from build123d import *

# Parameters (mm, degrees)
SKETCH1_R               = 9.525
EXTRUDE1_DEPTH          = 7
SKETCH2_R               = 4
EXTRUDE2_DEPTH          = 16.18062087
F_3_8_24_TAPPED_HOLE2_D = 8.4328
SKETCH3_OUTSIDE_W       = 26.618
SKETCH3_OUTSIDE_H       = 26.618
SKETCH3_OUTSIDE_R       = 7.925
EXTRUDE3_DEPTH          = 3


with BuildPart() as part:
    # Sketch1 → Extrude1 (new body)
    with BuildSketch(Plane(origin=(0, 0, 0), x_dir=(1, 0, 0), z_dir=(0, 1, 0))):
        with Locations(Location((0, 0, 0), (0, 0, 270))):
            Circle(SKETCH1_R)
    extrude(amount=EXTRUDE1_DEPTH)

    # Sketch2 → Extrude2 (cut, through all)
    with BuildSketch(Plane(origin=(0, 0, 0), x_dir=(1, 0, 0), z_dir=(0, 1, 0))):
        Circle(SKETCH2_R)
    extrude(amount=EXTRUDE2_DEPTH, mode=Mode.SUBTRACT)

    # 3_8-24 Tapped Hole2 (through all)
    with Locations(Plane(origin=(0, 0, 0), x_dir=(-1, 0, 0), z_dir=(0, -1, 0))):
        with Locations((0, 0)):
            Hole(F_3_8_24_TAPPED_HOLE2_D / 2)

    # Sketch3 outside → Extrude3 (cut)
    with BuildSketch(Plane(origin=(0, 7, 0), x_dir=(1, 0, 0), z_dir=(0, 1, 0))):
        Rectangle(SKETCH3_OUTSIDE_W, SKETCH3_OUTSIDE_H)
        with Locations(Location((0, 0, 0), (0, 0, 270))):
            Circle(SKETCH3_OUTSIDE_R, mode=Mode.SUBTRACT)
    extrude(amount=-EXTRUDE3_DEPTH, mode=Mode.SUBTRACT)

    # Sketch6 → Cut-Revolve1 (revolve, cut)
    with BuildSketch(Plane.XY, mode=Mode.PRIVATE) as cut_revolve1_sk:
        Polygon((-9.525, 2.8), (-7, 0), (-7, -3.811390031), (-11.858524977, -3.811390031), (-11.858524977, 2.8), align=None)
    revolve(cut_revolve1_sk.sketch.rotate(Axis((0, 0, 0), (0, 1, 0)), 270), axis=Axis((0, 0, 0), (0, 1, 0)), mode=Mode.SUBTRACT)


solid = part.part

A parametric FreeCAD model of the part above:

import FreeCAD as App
import Part
import Sketcher

doc = App.newDocument("Part")
body = doc.addObject("PartDesign::Body", "Body")

# Sketch on XZ plane
sketch1 = doc.addObject("Sketcher::SketchObject", "Sketch")
body.addObject(sketch1)
sketch1.AttachmentSupport = (doc.XZ_Plane, [""])
sketch1.MapMode = "FlatFace"
sketch1.addGeometry(Part.Circle(App.Vector(0, 0, 0), App.Vector(0, 0, 1), 9.525), False)
sketch1.addConstraint(Sketcher.Constraint("Coincident", 0, 3, -1, 1))
sketch1.addConstraint(Sketcher.Constraint("Diameter", 0, 19.05))
pad1 = doc.addObject("PartDesign::Pad", "Pad")
body.addObject(pad1)
pad1.Profile = sketch1
pad1.Length = 7
pad1.Reversed = True

# Sketch on XZ plane
sketch2 = doc.addObject("Sketcher::SketchObject", "Sketch001")
body.addObject(sketch2)
sketch2.AttachmentSupport = (doc.XZ_Plane, [""])
sketch2.MapMode = "FlatFace"
sketch2.addGeometry(Part.Circle(App.Vector(0, 0, 0), App.Vector(0, 0, 1), 4), False)
sketch2.addConstraint(Sketcher.Constraint("Coincident", 0, 3, -1, 1))
sketch2.addConstraint(Sketcher.Constraint("Diameter", 0, 8.0))
pocket1 = doc.addObject("PartDesign::Pocket", "Pocket")
body.addObject(pocket1)
pocket1.Profile = sketch2
pocket1.Type = "ThroughAll"

# Sketch on XZ plane
sketch3 = doc.addObject("Sketcher::SketchObject", "Sketch002")
body.addObject(sketch3)
sketch3.AttachmentSupport = (doc.XZ_Plane, [""])
sketch3.MapMode = "FlatFace"
sketch3.addGeometry(Part.Circle(App.Vector(0, 0, 0), App.Vector(0, 0, 1), 4.2164), False)
sketch3.addConstraint(Sketcher.Constraint("Coincident", 0, 3, -1, 1))
sketch3.addConstraint(Sketcher.Constraint("Diameter", 0, 8.4328))
doc.recompute()
hole = doc.addObject("PartDesign::Hole", "Hole")
body.addObject(hole)
hole.Profile = sketch3
hole.ThreadType = "None"
hole.Diameter = 8.4328
hole.DepthType = "ThroughAll"

# Sketch on XZ plane
sketch4 = doc.addObject("Sketcher::SketchObject", "Sketch003")
body.addObject(sketch4)
sketch4.AttachmentSupport = (doc.XZ_Plane, [""])
sketch4.MapMode = "FlatFace"
sketch4.AttachmentOffset = App.Placement(App.Vector(0, 0, -7), App.Rotation())
sketch4.addGeometry(Part.LineSegment(App.Vector(-13.309, -13.309, 0), App.Vector(-13.309, 13.309, 0)), False)
sketch4.addGeometry(Part.LineSegment(App.Vector(-13.309, 13.309, 0), App.Vector(13.309, 13.309, 0)), False)
sketch4.addGeometry(Part.LineSegment(App.Vector(13.309, 13.309, 0), App.Vector(13.309, -13.309, 0)), False)
sketch4.addGeometry(Part.LineSegment(App.Vector(13.309, -13.309, 0), App.Vector(-13.309, -13.309, 0)), False)
sketch4.addGeometry(Part.Circle(App.Vector(0, 0, 0), App.Vector(0, 0, 1), 7.925), False)
sketch4.addConstraint(Sketcher.Constraint("Coincident", 0, 2, 1, 1))
sketch4.addConstraint(Sketcher.Constraint("Coincident", 1, 2, 2, 1))
sketch4.addConstraint(Sketcher.Constraint("Coincident", 2, 2, 3, 1))
sketch4.addConstraint(Sketcher.Constraint("Coincident", 3, 2, 0, 1))
sketch4.addConstraint(Sketcher.Constraint("Vertical", 0))
sketch4.addConstraint(Sketcher.Constraint("Horizontal", 1))
sketch4.addConstraint(Sketcher.Constraint("Vertical", 2))
sketch4.addConstraint(Sketcher.Constraint("Horizontal", 3))
sketch4.addConstraint(Sketcher.Constraint("Coincident", 4, 3, -1, 1))
sketch4.addConstraint(Sketcher.Constraint("Symmetric", 0, 2, 2, 2, -1, 1))
sketch4.addConstraint(Sketcher.Constraint("Equal", 3, 0))
sketch4.addConstraint(Sketcher.Constraint("Diameter", 4, 15.85))
sketch4.addConstraint(Sketcher.Constraint("DistanceX", 1, 1, 1, 2, 26.618))
pocket2 = doc.addObject("PartDesign::Pocket", "Pocket001")
body.addObject(pocket2)
pocket2.Profile = sketch4
pocket2.Length = 3
pocket2.Reversed = True

# Sketch on XY plane
sketch5 = doc.addObject("Sketcher::SketchObject", "Sketch004")
body.addObject(sketch5)
sketch5.AttachmentSupport = (doc.XY_Plane, [""])
sketch5.MapMode = "FlatFace"
sketch5.addGeometry(Part.LineSegment(App.Vector(-7, 0, 0), App.Vector(-9.525, 2.8, 0)), False)
sketch5.addGeometry(Part.LineSegment(App.Vector(-9.525, 2.8, 0), App.Vector(-11.858525, 2.8, 0)), False)
sketch5.addGeometry(Part.LineSegment(App.Vector(-11.858525, 2.8, 0), App.Vector(-11.858525, -3.81139, 0)), False)
sketch5.addGeometry(Part.LineSegment(App.Vector(-11.858525, -3.81139, 0), App.Vector(-7, -3.81139, 0)), False)
sketch5.addGeometry(Part.LineSegment(App.Vector(-7, -3.81139, 0), App.Vector(-7, 0, 0)), False)
sketch5.addConstraint(Sketcher.Constraint("Coincident", 0, 2, 1, 1))
sketch5.addConstraint(Sketcher.Constraint("Coincident", 1, 2, 2, 1))
sketch5.addConstraint(Sketcher.Constraint("Coincident", 2, 2, 3, 1))
sketch5.addConstraint(Sketcher.Constraint("Coincident", 3, 2, 4, 1))
sketch5.addConstraint(Sketcher.Constraint("Coincident", 4, 2, 0, 1))
sketch5.addConstraint(Sketcher.Constraint("Horizontal", 1))
sketch5.addConstraint(Sketcher.Constraint("Vertical", 2))
sketch5.addConstraint(Sketcher.Constraint("Horizontal", 3))
sketch5.addConstraint(Sketcher.Constraint("Vertical", 4))
sketch5.addConstraint(Sketcher.Constraint("PointOnObject", 4, 2, -1))
sketch5.addConstraint(Sketcher.Constraint("DistanceX", 3, 2, -1, 1, 7.0))
sketch5.addConstraint(Sketcher.Constraint("DistanceY", -1, 1, 0, 2, 2.8))
sketch5.addConstraint(Sketcher.Constraint("DistanceX", 0, 2, -1, 1, 9.525))
sketch5.addConstraint(Sketcher.Constraint("DistanceY", 2, 2, 2, 1, 6.61139))
sketch5.addConstraint(Sketcher.Constraint("DistanceX", 1, 2, 1, 1, 2.333525))
groove = doc.addObject("PartDesign::Groove", "Groove")
body.addObject(groove)
groove.Profile = sketch5
groove.ReferenceAxis = (sketch5, ["V_Axis"])
groove.Angle = 360

doc.recompute()
